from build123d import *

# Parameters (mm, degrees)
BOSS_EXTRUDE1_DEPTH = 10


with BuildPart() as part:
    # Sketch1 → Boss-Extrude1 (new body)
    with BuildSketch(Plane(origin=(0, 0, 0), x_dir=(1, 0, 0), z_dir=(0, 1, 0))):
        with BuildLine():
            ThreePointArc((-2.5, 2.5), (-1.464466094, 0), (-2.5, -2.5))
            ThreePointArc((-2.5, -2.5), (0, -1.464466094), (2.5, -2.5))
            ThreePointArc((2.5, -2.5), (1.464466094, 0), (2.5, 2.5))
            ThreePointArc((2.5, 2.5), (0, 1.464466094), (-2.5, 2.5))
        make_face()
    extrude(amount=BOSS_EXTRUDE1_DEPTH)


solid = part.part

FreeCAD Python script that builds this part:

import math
import FreeCAD as App
import Part
import Sketcher
from FreeCAD import Vector

doc = App.newDocument("Part")
params = doc.addObject("Spreadsheet::Sheet", "Params")
for row, (alias, value) in enumerate([
    ("pad1_length", "10 mm"),
], start=1):
    params.set(f"A{row}", alias)
    params.set(f"B{row}", "=" + value)
    params.setAlias(f"B{row}", alias)

body = doc.addObject("PartDesign::Body", "Body")

sketch1 = body.newObject("Sketcher::SketchObject", "Sketch")
sketch1.AttachmentSupport = (doc.getObject("XZ_Plane"), [""])
sketch1.MapMode = "FlatFace"
sketch1.addGeometry([
    Part.ArcOfCircle(Part.Circle(Vector(-5, 0, 0), Vector(0, 0, 1), 3.5), math.radians(-45), math.radians(45)),
    Part.ArcOfCircle(Part.Circle(Vector(0, 5, 0), Vector(0, 0, 1), 3.5), math.radians(-135), math.radians(-45)),
    Part.ArcOfCircle(Part.Circle(Vector(5, 0, 0), Vector(0, 0, 1), 3.5), math.radians(135), math.radians(225)),
    Part.ArcOfCircle(Part.Circle(Vector(0, -5, 0), Vector(0, 0, 1), 3.5), math.radians(45), math.radians(135)),
], False)
sketch1.addConstraint([
    Sketcher.Constraint("Tangent", 0, 2, 1, 1),
    Sketcher.Constraint("Tangent", 1, 2, 2, 1),
    Sketcher.Constraint("Tangent", 2, 2, 3, 1),
    Sketcher.Constraint("Tangent", 3, 2, 0, 1),
    Sketcher.Constraint("Equal", 0, 1),
    Sketcher.Constraint("Equal", 1, 2),
    Sketcher.Constraint("Equal", 2, 3),
    Sketcher.Constraint("Symmetric", 0, 3, 2, 3, -1, 1),
    Sketcher.Constraint("PointOnObject", 0, 3, -1),
    Sketcher.Constraint("DistanceX", 0, 3, -1, 1, 5.0),
    Sketcher.Constraint("DistanceY", -1, 1, 1, 3, 5.0),
])
pad1 = body.newObject("PartDesign::Pad", "Pad")
pad1.Profile = sketch1
pad1.setExpression("Length", "Params.pad1_length")
pad1.Reversed = True

doc.recompute()
